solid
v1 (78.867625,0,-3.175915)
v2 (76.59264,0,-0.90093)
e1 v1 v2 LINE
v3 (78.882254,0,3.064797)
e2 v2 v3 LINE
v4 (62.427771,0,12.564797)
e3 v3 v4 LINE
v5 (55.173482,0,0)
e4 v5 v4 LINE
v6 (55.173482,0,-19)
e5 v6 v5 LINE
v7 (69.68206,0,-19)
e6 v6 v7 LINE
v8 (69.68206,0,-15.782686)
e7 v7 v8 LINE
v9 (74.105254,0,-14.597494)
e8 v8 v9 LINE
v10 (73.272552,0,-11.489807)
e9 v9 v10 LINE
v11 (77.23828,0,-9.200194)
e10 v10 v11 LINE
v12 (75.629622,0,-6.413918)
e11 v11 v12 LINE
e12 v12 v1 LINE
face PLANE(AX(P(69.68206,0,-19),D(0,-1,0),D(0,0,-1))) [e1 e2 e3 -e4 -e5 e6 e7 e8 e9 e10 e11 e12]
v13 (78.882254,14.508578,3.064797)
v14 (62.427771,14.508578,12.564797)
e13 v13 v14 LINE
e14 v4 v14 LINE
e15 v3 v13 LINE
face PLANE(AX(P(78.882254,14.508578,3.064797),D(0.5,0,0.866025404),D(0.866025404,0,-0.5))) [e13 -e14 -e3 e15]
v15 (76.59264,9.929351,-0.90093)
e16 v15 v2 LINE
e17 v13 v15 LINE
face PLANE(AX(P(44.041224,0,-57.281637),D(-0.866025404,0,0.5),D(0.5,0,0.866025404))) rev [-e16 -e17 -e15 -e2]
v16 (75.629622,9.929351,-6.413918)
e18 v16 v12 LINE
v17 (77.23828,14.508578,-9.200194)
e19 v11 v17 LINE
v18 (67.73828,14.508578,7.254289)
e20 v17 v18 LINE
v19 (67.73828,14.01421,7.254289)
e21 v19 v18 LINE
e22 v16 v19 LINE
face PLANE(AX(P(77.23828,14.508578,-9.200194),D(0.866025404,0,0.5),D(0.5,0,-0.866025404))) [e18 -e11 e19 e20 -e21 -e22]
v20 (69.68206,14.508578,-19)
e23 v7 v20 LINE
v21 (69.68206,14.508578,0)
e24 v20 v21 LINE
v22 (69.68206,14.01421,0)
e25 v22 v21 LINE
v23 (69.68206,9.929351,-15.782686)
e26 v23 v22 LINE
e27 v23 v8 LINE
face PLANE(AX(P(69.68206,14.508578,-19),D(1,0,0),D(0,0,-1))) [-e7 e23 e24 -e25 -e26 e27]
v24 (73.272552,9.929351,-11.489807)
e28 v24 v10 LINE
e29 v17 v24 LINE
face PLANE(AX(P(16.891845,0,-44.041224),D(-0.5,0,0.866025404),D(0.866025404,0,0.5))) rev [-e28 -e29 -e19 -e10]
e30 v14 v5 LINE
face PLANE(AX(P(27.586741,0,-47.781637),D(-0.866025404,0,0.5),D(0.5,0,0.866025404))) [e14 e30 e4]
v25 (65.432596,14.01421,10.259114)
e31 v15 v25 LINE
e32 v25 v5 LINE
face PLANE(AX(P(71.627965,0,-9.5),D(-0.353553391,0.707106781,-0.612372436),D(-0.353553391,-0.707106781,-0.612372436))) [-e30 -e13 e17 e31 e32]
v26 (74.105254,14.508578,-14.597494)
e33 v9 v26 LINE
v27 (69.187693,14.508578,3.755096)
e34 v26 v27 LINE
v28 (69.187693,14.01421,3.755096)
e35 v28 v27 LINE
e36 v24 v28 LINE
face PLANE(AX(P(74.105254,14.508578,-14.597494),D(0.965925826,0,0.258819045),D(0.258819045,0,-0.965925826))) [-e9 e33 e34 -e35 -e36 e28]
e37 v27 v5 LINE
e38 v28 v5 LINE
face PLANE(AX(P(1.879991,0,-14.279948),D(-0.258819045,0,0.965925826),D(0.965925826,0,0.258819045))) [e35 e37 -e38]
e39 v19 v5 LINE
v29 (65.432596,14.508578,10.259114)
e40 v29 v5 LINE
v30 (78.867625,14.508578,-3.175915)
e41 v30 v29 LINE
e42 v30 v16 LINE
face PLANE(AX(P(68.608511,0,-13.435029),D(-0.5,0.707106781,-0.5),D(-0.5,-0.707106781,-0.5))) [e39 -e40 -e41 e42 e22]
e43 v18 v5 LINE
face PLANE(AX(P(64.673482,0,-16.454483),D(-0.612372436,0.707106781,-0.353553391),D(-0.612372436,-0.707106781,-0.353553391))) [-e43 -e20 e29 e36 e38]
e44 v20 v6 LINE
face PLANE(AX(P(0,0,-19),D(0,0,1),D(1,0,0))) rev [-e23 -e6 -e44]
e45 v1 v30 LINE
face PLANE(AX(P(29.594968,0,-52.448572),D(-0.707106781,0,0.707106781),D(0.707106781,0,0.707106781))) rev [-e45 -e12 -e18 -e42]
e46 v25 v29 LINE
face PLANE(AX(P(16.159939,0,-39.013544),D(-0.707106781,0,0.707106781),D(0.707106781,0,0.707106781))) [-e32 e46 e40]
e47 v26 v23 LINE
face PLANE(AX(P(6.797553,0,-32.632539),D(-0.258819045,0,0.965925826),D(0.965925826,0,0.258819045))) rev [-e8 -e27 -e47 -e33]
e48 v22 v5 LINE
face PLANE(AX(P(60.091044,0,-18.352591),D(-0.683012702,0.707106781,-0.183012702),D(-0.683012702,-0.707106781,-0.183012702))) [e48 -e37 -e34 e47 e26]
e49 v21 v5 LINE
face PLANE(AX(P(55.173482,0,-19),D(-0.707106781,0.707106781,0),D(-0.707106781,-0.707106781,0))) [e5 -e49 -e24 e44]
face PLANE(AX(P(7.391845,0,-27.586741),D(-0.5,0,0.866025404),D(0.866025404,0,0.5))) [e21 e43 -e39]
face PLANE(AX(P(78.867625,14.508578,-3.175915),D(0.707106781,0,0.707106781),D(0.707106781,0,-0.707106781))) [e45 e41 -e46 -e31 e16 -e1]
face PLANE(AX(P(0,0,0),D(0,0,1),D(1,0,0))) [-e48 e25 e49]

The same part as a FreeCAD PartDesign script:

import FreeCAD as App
import Part
import Sketcher
Q = App.Units.Quantity

doc = App.newDocument("Part")
params = doc.addObject("Spreadsheet::Sheet", "Params")
for row, (alias, value) in enumerate([
    ("pad1_length", "19 mm"),
], start=1):
    params.set(f"A{row}", alias)
    params.set(f"B{row}", "=" + value)
    params.setAlias(f"B{row}", alias)

body = doc.addObject("PartDesign::Body", "Body")

# Sketch on XY plane
sketch1 = doc.addObject("Sketcher::SketchObject", "Sketch")
body.addObject(sketch1)
sketch1.AttachmentSupport = (doc.XY_Plane, [""])
sketch1.MapMode = "FlatFace"
sketch1.addGeometry([
    Part.LineSegment(App.Vector(70, 15, 0), App.Vector(55, 0, 0)),
    Part.LineSegment(App.Vector(55, 0, 0), App.Vector(70, 0, 0)),
    Part.LineSegment(App.Vector(70, 0, 0), App.Vector(70, 15, 0)),
], False)
sketch1.addConstraint([
    Sketcher.Constraint("Coincident", 0, 2, 1, 1),
    Sketcher.Constraint("Coincident", 1, 2, 2, 1),
    Sketcher.Constraint("Coincident", 2, 2, 0, 1),
    Sketcher.Constraint("Horizontal", 1),
    Sketcher.Constraint("Vertical", 2),
    Sketcher.Constraint("PointOnObject", 0, 2, -1),
    Sketcher.Constraint("Equal", 1, 2),
    Sketcher.Constraint("DistanceX", 1, 1, 1, 2, Q("14.508578 mm")),
    Sketcher.Constraint("DistanceX", -1, 1, 1, 2, Q("69.68206 mm")),
])
pad1 = doc.addObject("PartDesign::Pad", "Pad")
body.addObject(pad1)
pad1.Profile = sketch1
pad1.setExpression("Length", "Params.pad1_length")
pad1.Reversed = True
doc.recompute()

datumline = doc.addObject("PartDesign::Line", "DatumLine")
body.addObject(datumline)
datumline.Placement = App.Placement(App.Vector(55.173482, 0, 0), App.Rotation(App.Vector(0, 0, 1), App.Vector(0, -1, 0)))
polarpattern = doc.addObject("PartDesign::PolarPattern", "PolarPattern")
body.addObject(polarpattern)
polarpattern.Originals = [pad1]
polarpattern.Axis = (datumline, [""])
polarpattern.Angle = 60
polarpattern.Occurrences = 5
body.Tip = polarpattern

doc.recompute()
